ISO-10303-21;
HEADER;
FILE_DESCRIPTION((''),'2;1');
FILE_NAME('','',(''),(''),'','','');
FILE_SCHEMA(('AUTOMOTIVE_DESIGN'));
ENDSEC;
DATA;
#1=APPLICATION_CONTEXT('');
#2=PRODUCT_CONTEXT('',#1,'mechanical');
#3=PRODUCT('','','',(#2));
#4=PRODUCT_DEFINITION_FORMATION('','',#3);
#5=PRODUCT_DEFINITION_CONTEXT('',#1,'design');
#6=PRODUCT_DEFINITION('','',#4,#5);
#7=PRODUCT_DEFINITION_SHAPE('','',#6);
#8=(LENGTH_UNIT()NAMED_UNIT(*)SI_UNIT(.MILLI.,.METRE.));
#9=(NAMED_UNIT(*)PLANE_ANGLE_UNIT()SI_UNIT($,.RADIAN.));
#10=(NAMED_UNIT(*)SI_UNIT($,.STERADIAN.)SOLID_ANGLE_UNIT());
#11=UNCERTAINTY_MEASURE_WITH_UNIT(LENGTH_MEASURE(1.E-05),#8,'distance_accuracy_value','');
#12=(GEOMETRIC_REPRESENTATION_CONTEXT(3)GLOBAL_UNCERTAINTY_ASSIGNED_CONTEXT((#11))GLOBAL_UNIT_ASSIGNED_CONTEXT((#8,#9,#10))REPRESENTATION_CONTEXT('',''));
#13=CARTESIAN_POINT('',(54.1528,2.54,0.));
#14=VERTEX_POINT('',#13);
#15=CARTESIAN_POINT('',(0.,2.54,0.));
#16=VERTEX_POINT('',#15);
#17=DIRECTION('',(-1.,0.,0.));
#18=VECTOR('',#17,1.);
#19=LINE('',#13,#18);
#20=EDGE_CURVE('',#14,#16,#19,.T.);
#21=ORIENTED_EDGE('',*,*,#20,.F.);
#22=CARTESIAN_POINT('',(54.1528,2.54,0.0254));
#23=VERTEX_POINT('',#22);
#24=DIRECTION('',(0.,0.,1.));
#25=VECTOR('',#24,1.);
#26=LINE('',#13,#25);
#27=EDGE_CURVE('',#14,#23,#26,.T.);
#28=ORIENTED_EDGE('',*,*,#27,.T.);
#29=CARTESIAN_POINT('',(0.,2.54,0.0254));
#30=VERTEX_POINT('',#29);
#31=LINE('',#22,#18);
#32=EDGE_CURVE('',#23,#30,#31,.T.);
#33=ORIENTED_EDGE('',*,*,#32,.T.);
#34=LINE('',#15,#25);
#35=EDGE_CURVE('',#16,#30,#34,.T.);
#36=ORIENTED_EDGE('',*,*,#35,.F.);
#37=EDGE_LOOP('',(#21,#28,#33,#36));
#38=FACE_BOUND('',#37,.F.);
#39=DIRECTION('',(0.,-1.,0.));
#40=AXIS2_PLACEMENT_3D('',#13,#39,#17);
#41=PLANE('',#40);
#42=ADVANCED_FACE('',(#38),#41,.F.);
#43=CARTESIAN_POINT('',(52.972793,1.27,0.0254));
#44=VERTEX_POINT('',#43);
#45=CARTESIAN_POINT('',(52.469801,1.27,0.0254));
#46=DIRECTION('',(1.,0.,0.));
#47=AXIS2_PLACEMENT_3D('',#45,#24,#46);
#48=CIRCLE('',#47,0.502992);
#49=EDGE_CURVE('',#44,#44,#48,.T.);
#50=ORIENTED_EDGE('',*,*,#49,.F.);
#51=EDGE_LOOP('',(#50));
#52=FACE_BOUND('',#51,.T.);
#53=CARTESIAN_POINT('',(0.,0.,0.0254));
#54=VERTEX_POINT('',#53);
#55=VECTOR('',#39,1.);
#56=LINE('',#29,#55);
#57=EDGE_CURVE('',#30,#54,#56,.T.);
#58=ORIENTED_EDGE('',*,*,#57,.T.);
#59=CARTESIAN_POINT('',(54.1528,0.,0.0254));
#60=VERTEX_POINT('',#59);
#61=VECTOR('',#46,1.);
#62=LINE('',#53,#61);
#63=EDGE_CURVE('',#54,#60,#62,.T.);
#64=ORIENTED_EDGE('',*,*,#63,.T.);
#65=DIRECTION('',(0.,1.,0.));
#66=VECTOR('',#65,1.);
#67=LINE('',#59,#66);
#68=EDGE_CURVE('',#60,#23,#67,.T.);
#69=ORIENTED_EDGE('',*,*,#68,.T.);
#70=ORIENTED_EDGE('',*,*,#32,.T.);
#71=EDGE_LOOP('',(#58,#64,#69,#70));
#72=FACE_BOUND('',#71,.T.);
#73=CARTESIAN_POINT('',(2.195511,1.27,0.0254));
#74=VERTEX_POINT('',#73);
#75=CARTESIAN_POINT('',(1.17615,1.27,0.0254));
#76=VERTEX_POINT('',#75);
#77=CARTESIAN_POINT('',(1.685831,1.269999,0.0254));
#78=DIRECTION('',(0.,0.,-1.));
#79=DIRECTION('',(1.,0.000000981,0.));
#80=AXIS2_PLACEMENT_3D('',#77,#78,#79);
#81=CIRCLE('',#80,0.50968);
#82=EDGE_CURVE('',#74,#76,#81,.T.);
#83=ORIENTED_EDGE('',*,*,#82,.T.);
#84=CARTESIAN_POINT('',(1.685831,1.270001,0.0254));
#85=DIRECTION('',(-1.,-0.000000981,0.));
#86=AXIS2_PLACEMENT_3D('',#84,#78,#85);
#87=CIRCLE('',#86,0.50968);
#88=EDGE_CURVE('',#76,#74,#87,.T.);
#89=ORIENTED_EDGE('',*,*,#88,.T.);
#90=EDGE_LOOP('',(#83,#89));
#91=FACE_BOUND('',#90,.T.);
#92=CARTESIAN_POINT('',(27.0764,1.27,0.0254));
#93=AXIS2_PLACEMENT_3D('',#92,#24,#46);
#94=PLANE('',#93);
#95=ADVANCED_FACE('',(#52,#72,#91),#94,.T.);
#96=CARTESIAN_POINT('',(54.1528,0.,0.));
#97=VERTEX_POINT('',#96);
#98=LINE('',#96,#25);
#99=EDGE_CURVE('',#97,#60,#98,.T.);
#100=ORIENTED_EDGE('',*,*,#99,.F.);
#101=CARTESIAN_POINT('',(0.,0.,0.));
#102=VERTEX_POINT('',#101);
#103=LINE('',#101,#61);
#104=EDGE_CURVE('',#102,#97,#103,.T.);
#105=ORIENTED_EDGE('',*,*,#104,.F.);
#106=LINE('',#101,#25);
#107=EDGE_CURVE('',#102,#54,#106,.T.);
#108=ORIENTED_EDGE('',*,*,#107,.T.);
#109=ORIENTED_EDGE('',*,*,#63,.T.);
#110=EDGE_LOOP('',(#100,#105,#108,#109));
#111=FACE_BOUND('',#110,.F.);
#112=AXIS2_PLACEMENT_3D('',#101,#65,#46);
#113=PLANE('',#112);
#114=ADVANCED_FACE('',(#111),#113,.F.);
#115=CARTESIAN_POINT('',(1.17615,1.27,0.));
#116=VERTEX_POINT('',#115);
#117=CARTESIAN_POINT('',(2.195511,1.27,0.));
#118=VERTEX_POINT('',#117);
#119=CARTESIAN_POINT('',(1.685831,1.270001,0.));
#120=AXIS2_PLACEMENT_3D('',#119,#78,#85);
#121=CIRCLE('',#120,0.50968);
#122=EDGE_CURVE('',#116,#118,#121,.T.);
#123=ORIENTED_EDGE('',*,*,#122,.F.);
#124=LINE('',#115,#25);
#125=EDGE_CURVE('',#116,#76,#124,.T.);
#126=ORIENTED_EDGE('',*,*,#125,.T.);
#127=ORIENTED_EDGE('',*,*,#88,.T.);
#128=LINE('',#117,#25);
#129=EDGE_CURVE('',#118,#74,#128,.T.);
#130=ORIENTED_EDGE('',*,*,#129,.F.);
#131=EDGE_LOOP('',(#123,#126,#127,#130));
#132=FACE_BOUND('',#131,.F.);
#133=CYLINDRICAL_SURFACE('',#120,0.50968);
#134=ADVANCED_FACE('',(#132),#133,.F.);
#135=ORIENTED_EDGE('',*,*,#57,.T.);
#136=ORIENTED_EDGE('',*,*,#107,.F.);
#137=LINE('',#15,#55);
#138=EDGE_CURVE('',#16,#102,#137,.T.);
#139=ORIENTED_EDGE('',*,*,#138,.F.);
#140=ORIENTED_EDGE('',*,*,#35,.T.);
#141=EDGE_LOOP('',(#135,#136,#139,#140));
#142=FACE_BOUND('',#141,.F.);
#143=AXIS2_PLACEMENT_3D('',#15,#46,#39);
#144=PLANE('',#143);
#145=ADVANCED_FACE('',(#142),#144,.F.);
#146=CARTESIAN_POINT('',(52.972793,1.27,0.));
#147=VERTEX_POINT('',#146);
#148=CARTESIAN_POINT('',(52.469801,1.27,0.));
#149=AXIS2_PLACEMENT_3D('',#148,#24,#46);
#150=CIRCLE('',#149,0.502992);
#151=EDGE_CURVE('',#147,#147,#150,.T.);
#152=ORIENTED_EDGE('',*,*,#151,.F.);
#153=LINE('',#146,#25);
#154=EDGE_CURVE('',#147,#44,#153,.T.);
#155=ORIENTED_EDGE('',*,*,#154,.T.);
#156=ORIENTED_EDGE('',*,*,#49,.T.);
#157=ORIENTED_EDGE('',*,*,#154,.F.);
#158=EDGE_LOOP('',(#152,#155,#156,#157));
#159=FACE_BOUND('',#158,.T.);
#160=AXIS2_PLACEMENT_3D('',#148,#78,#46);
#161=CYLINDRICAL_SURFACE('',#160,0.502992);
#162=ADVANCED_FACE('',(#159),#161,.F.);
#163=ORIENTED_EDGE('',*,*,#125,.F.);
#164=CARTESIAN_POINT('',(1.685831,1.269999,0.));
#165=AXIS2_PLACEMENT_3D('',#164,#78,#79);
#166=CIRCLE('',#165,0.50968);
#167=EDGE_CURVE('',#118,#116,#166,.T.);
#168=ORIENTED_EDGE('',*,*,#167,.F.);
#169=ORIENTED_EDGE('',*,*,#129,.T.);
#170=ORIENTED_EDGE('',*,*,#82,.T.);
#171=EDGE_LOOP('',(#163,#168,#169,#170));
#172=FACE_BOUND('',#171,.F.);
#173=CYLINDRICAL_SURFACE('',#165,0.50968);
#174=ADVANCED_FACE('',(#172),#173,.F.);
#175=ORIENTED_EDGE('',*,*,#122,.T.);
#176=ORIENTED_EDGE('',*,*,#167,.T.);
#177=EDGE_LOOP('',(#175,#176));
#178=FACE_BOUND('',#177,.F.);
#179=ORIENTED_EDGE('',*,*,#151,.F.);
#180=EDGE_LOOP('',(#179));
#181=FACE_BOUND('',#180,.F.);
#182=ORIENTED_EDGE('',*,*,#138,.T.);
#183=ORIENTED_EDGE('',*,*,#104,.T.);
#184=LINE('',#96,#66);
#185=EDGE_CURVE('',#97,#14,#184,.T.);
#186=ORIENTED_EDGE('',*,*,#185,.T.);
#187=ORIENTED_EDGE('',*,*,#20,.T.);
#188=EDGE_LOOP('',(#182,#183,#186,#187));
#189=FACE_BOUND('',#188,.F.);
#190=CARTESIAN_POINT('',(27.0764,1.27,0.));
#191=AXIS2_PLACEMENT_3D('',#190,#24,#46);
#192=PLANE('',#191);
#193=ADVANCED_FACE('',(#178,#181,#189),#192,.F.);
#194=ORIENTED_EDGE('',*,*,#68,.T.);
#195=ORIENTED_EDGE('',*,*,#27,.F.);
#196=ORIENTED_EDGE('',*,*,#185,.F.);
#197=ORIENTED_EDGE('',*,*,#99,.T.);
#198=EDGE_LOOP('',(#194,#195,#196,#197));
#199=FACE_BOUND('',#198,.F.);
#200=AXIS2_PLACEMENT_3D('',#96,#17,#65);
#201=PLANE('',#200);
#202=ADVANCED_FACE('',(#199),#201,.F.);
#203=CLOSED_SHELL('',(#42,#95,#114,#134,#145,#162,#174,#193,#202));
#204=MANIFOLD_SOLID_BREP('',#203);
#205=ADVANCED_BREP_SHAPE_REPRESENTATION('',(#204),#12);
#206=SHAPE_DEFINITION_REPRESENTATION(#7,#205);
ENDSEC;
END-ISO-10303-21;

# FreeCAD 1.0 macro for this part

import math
import FreeCAD as App
import Part
import Sketcher
Q = App.Units.Quantity

doc = App.newDocument("Part")
body = doc.addObject("PartDesign::Body", "Body")

# Sketch on XY plane
sketch1 = body.newObject("Sketcher::SketchObject", "Sketch")
sketch1.AttachmentSupport = (doc.getObject("XY_Plane"), [""])
sketch1.MapMode = "FlatFace"
sketch1.addGeometry([
    Part.LineSegment(App.Vector(0, 0, 0), App.Vector(54.2, 0, 0)),  # 0
    Part.LineSegment(App.Vector(54.2, 0, 0), App.Vector(54.2, 2.5, 0)),  # 1
    Part.LineSegment(App.Vector(54.2, 2.5, 0), App.Vector(0, 2.5, 0)),  # 2
    Part.LineSegment(App.Vector(0, 2.5, 0), App.Vector(0, 0, 0)),  # 3
    Part.Circle(App.Vector(52.5, 1.3, 0), App.Vector(0, 0, 1), 0.5),  # 4
    Part.ArcOfCircle(Part.Circle(App.Vector(1.7, 1.3, 0), App.Vector(0, 0, 1), 0.5), math.radians(0), math.radians(180)),  # 5
    Part.ArcOfCircle(Part.Circle(App.Vector(1.7, 1.3, 0), App.Vector(0, 0, 1), 0.5), math.radians(180), math.radians(360)),  # 6
], False)
sketch1.addConstraint([
    Sketcher.Constraint("Coincident", 0, 2, 1, 1),
    Sketcher.Constraint("Coincident", 1, 2, 2, 1),
    Sketcher.Constraint("Coincident", 2, 2, 3, 1),
    Sketcher.Constraint("Coincident", 3, 2, 0, 1),
    Sketcher.Constraint("Tangent", 5, 1, 6, 2),
    Sketcher.Constraint("Coincident", 6, 1, 5, 2),
    Sketcher.Constraint("Horizontal", 0),
    Sketcher.Constraint("Vertical", 1),
    Sketcher.Constraint("Horizontal", 2),
    Sketcher.Constraint("Vertical", 3),
    Sketcher.Constraint("Coincident", 3, 2, -1, 1),
    Sketcher.Constraint("Horizontal", 4, 3, 5, 3),
    Sketcher.Constraint("Horizontal", 6, 3, 5, 1),
    Sketcher.Constraint("Horizontal", 5, 1, 6, 1),
    Sketcher.Constraint("DistanceY", 1, 1, 1, 2, Q("0.1 in")),
    Sketcher.Constraint("DistanceX", 0, 1, 0, 2, Q("2.132 in")),
    Sketcher.Constraint("DistanceY", -1, 1, 4, 3, Q("0.05 in")),
    Sketcher.Constraint("Radius", 5, 0.50968),
    Sketcher.Constraint("Diameter", 4, 1.005984),
    Sketcher.Constraint("DistanceX", -1, 1, 4, 3, 52.469801),
    Sketcher.Constraint("DistanceX", -1, 1, 5, 3, 1.685831),
])
pad1 = body.newObject("PartDesign::Pad", "Pad")
pad1.Profile = sketch1
pad1.Length = Q("0.001 in")

doc.recompute()
